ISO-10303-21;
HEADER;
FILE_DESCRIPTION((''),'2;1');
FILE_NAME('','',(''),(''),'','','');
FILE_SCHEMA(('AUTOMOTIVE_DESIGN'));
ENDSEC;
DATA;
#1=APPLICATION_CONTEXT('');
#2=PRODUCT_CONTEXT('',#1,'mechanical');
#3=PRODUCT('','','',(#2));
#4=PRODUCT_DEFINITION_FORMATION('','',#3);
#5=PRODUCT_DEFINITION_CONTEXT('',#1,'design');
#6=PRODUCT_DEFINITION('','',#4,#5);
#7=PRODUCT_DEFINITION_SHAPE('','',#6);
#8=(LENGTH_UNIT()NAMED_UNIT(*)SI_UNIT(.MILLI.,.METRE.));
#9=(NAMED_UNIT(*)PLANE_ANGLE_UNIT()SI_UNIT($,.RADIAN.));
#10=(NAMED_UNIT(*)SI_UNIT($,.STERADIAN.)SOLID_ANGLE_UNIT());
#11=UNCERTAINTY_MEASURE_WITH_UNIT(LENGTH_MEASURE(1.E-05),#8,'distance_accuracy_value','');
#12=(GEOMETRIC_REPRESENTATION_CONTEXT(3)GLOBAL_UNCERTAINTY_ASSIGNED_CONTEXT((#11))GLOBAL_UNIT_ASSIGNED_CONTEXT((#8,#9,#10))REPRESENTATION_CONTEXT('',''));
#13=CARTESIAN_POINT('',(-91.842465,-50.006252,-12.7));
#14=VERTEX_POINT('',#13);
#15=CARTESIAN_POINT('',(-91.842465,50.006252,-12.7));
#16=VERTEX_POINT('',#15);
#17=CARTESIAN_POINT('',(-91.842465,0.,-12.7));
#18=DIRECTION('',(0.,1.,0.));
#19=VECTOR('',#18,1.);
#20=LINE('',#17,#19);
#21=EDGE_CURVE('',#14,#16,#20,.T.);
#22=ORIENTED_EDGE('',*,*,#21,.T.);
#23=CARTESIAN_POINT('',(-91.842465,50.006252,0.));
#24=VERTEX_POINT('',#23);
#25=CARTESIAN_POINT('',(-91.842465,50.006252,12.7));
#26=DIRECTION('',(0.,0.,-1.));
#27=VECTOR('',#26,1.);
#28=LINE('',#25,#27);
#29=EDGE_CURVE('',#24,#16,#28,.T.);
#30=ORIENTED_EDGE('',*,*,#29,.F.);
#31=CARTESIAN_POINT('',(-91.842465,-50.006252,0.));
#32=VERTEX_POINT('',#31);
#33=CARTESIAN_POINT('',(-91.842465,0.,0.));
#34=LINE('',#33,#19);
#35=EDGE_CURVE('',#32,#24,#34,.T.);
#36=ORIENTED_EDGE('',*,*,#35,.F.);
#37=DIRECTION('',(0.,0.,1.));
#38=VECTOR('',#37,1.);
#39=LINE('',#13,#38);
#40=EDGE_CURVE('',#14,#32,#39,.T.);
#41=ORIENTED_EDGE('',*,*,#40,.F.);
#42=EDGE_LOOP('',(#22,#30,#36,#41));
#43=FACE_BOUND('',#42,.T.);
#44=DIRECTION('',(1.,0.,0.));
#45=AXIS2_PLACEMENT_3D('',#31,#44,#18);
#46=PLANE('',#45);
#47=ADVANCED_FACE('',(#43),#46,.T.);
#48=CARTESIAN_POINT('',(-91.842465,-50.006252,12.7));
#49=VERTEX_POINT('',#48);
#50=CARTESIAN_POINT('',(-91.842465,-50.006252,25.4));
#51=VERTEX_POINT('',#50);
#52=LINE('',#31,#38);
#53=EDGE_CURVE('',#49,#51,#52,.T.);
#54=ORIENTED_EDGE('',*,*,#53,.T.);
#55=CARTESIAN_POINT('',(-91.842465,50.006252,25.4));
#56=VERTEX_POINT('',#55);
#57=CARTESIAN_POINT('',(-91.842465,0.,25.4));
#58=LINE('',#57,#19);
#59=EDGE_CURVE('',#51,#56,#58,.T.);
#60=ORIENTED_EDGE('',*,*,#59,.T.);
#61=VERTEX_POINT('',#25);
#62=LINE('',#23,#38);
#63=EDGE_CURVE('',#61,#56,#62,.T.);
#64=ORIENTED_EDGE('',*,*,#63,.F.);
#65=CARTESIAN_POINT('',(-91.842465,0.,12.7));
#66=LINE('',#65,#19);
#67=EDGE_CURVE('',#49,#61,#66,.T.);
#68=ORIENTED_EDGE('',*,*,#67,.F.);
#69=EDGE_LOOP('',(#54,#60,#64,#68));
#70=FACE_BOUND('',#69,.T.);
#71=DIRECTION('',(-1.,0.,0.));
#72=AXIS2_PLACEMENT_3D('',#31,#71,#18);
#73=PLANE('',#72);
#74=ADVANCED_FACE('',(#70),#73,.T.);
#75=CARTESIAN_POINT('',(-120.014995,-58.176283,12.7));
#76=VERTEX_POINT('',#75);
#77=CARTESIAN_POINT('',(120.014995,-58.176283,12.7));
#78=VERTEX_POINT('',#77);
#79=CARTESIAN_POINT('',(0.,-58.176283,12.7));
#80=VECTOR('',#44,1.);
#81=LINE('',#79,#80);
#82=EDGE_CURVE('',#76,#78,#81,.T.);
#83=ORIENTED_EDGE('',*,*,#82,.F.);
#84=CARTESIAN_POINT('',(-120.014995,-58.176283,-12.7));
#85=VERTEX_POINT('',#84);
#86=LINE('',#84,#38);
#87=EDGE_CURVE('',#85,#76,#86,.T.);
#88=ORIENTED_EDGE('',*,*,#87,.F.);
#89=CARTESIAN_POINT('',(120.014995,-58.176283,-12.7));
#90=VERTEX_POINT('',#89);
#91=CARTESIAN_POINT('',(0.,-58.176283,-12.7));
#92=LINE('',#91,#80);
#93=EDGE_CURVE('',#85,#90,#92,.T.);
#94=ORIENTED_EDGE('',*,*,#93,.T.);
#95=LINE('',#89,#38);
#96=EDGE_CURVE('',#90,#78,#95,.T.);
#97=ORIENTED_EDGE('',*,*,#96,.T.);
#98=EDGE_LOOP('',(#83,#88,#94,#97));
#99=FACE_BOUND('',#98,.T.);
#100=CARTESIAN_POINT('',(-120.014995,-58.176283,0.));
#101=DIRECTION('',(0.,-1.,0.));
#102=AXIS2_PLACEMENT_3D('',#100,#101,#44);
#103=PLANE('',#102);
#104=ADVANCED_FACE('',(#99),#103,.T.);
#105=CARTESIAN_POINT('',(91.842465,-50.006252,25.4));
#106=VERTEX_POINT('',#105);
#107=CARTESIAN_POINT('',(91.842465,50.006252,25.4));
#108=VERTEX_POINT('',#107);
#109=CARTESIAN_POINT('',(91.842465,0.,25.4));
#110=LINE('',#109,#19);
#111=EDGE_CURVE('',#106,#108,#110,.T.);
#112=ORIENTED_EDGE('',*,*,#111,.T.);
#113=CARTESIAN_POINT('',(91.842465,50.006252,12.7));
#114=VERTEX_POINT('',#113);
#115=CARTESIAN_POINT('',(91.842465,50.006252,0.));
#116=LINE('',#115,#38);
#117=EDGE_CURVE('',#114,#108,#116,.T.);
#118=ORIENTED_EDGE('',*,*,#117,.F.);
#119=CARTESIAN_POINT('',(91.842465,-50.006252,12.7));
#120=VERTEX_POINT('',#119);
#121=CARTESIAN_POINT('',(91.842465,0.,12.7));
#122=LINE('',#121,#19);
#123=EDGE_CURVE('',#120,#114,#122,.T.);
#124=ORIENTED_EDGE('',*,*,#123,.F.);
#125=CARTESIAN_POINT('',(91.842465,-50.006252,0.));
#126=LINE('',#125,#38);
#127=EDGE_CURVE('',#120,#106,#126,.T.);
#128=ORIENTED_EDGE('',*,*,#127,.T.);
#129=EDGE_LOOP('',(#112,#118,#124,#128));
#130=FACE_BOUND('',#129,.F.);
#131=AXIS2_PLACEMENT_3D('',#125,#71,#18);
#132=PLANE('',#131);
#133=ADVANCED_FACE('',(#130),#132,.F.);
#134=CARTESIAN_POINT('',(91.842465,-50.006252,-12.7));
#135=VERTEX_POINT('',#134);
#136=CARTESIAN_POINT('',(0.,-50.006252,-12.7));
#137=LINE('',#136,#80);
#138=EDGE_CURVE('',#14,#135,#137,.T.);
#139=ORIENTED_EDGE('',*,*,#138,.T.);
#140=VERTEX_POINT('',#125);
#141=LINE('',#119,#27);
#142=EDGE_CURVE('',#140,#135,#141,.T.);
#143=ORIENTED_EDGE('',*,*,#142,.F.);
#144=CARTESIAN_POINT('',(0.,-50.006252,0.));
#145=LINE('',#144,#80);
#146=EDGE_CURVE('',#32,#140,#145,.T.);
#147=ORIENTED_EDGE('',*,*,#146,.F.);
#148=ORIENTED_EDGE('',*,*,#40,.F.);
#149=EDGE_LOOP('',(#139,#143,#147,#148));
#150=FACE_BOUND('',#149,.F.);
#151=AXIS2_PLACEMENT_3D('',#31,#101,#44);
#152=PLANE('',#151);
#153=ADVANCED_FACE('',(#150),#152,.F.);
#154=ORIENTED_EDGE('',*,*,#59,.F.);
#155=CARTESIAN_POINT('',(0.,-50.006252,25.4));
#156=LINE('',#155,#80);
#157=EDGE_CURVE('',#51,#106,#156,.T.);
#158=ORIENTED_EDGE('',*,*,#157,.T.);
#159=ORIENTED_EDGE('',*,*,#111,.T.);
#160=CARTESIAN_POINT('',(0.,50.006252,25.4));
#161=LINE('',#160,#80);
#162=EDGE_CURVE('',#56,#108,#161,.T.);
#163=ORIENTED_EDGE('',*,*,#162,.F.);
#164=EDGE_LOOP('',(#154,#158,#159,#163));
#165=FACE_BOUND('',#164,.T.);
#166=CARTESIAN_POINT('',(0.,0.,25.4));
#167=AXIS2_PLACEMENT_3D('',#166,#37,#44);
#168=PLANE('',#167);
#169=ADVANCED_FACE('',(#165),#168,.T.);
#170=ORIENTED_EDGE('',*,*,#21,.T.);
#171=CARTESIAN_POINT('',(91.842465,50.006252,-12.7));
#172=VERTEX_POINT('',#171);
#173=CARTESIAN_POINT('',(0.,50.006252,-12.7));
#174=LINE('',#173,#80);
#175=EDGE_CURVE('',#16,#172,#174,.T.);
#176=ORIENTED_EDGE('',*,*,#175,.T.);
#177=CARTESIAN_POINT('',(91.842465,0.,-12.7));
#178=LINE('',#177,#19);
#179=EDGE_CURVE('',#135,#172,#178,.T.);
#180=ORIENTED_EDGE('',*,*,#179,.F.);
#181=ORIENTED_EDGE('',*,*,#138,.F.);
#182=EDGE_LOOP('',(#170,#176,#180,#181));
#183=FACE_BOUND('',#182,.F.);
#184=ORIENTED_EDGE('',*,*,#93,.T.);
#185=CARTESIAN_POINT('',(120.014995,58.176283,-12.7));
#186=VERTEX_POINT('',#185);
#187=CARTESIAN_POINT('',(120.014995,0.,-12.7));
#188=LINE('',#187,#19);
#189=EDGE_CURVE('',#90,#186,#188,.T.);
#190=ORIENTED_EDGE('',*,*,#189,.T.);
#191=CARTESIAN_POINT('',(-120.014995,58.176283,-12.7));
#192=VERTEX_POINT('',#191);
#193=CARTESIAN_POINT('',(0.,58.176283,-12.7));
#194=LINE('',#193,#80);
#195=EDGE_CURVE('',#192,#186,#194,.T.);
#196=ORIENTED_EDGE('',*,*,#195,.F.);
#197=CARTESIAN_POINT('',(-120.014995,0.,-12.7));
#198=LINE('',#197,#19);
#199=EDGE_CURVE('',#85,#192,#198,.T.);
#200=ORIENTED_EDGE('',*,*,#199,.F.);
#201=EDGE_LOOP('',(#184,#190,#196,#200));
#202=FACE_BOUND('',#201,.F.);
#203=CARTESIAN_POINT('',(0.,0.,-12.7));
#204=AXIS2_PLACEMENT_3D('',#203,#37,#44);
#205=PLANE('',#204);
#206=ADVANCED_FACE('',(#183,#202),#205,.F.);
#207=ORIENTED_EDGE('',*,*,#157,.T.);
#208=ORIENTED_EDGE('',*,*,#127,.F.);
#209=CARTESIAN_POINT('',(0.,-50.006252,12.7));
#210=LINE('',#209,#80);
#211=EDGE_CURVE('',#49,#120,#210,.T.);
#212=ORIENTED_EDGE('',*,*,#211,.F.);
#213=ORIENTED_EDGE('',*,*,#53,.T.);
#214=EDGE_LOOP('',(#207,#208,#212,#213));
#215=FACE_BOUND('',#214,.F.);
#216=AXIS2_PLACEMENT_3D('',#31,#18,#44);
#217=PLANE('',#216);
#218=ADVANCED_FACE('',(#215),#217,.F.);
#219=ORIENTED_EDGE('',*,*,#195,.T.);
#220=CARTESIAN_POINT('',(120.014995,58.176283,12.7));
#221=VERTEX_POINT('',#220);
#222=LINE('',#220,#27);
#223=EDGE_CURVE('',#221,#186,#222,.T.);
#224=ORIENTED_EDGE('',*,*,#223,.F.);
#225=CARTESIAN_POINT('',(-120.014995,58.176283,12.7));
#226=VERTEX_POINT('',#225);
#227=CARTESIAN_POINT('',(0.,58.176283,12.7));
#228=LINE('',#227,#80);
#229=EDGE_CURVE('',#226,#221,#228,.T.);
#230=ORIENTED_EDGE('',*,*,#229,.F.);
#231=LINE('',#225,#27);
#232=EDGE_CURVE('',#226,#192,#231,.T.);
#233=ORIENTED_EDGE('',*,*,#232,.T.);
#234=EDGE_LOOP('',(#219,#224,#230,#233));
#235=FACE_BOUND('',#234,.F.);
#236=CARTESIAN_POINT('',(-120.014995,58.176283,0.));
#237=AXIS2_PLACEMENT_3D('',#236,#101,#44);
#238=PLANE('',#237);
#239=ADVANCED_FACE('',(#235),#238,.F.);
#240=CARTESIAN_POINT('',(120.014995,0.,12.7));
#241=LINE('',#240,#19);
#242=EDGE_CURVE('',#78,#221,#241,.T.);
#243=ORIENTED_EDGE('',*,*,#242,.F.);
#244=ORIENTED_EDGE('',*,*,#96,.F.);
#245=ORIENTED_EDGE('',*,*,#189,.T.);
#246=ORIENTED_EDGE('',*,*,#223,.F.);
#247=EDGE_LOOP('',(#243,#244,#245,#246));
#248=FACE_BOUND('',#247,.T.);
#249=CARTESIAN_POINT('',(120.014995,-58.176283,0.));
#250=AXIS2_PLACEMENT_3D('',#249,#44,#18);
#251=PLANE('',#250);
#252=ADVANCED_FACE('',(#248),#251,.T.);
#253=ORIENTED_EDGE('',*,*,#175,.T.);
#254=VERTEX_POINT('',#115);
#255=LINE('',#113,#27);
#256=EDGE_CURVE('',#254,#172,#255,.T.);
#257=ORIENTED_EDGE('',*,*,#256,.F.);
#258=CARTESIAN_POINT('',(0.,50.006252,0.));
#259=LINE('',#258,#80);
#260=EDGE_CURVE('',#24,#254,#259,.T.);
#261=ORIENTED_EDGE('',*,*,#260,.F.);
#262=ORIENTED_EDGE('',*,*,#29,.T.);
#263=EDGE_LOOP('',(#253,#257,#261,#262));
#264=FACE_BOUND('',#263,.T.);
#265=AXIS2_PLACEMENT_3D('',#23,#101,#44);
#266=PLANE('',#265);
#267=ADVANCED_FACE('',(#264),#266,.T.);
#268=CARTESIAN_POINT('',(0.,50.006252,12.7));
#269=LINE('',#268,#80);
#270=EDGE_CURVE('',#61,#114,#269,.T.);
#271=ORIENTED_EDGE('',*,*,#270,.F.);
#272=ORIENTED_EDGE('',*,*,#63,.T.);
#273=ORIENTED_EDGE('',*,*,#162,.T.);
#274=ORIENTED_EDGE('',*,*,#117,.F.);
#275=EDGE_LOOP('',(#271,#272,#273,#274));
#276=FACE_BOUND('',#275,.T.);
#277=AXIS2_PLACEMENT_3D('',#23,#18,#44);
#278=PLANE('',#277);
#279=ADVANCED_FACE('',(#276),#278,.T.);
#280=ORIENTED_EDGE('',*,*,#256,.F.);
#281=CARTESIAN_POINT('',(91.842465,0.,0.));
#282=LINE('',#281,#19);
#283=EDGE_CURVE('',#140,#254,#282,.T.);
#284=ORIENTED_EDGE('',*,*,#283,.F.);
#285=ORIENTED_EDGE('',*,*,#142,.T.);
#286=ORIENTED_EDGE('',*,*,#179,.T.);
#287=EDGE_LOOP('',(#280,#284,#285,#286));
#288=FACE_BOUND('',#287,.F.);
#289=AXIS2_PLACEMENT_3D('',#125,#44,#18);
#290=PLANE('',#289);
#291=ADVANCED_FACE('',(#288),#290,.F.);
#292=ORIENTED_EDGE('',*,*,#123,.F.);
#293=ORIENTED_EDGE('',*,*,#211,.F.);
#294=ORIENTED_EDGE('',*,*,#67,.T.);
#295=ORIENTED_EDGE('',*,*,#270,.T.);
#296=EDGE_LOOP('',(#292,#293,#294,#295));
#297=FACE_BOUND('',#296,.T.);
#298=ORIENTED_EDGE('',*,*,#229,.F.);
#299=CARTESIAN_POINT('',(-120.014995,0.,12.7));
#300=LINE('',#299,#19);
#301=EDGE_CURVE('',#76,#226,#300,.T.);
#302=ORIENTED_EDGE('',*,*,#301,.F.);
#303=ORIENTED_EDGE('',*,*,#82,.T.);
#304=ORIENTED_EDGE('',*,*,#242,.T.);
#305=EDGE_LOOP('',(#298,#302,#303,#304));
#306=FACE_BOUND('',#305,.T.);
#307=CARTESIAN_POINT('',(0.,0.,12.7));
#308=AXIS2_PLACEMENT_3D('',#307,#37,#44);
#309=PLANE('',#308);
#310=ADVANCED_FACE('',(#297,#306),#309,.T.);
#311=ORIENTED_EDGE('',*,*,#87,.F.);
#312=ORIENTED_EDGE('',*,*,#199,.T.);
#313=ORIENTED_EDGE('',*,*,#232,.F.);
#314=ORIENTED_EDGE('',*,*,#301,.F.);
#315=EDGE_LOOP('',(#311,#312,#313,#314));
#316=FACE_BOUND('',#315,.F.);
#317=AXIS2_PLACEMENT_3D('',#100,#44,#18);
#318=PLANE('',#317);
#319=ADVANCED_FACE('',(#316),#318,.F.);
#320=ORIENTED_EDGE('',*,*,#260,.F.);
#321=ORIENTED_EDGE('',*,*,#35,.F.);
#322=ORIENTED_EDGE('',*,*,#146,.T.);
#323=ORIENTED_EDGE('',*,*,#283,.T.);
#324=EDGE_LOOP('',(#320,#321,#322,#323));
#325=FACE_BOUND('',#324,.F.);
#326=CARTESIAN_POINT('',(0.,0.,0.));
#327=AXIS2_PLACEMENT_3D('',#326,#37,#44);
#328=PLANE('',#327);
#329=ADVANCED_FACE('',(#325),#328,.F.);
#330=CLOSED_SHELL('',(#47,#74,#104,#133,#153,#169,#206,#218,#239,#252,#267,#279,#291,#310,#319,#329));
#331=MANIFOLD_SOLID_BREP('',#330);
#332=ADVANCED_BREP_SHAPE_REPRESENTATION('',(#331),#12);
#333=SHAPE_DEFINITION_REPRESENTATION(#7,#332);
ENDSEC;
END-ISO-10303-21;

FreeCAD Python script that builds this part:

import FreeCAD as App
import Part
import Sketcher

V = App.Vector
Q = App.Units.Quantity


def add_polygon(sketch, points):
    """Adds a closed chain of lines whose ends are joined by coincident constraints."""
    first, n = sketch.GeometryCount, len(points)
    for a, b in zip(points, points[1:] + points[:1]):
        sketch.addGeometry(Part.LineSegment(App.Vector(*a, 0), App.Vector(*b, 0)), False)
    for i in range(n):
        sketch.addConstraint(Sketcher.Constraint("Coincident", first + i, 2, first + (i + 1) % n, 1))

doc = App.newDocument("Part")
params = doc.addObject("Spreadsheet::Sheet", "Params")
for row, (alias, value) in enumerate([
    ("pad1_length", "1 in"),
    ("pad2_length", "1 in"),
], start=1):
    params.set(f"A{row}", alias)
    params.set(f"B{row}", "=" + value)
    params.setAlias(f"B{row}", alias)

body = doc.addObject("PartDesign::Body", "Body")

sketch1 = body.newObject("Sketcher::SketchObject", "Sketch")
sketch1.AttachmentSupport = (doc.getObject("XY_Plane"), [""])
sketch1.MapMode = "FlatFace"
add_polygon(sketch1, [(-92, 50), (-92, -50), (92, -50), (92, 50)])
sketch1.addConstraint(Sketcher.Constraint("Vertical", 0))
sketch1.addConstraint(Sketcher.Constraint("Horizontal", 1))
sketch1.addConstraint(Sketcher.Constraint("Vertical", 2))
sketch1.addConstraint(Sketcher.Constraint("Horizontal", 3))
sketch1.addConstraint(Sketcher.Constraint("Symmetric", 0, 2, 2, 2, -1, 1))
sketch1.addConstraint(Sketcher.Constraint("DistanceY", 0, 2, 0, 1, Q("3.9375002 in")))
sketch1.addConstraint(Sketcher.Constraint("DistanceX", 1, 1, 1, 2, 183.68493))
pad1 = body.newObject("PartDesign::Pad", "Pad")
pad1.Profile = sketch1
pad1.setExpression("Length", "Params.pad1_length")

sketch2 = body.newObject("Sketcher::SketchObject", "Sketch001")
sketch2.AttachmentSupport = (doc.getObject("XY_Plane"), [""])
sketch2.MapMode = "FlatFace"
add_polygon(sketch2, [(-120, 58), (-120, -58), (120, -58), (120, 58)])
add_polygon(sketch2, [(92, -50), (-92, -50), (-92, 50), (92, 50)])
sketch2.addConstraint(Sketcher.Constraint("Vertical", 0))
sketch2.addConstraint(Sketcher.Constraint("Horizontal", 1))
sketch2.addConstraint(Sketcher.Constraint("Vertical", 2))
sketch2.addConstraint(Sketcher.Constraint("Horizontal", 3))
sketch2.addConstraint(Sketcher.Constraint("Horizontal", 4))
sketch2.addConstraint(Sketcher.Constraint("Vertical", 5))
sketch2.addConstraint(Sketcher.Constraint("Horizontal", 6))
sketch2.addConstraint(Sketcher.Constraint("Vertical", 7))
sketch2.addConstraint(Sketcher.Constraint("Symmetric", 0, 2, 2, 2, -1, 1))
sketch2.addConstraint(Sketcher.Constraint("Symmetric", 4, 2, 6, 2, -1, 1))
sketch2.addConstraint(Sketcher.Constraint("DistanceY", 5, 1, 5, 2, Q("3.9375002 in")))
sketch2.addConstraint(Sketcher.Constraint("DistanceX", 0, 2, -1, 1, Q("4.7249998 in")))
sketch2.addConstraint(Sketcher.Constraint("DistanceX", 4, 2, 4, 1, 183.68493))
sketch2.addConstraint(Sketcher.Constraint("DistanceY", 0, 2, 0, 1, 116.352566))
pad2 = body.newObject("PartDesign::Pad", "Pad001")
pad2.Profile = sketch2
pad2.setExpression("Length", "Params.pad2_length")
pad2.Midplane = True

doc.recompute()
